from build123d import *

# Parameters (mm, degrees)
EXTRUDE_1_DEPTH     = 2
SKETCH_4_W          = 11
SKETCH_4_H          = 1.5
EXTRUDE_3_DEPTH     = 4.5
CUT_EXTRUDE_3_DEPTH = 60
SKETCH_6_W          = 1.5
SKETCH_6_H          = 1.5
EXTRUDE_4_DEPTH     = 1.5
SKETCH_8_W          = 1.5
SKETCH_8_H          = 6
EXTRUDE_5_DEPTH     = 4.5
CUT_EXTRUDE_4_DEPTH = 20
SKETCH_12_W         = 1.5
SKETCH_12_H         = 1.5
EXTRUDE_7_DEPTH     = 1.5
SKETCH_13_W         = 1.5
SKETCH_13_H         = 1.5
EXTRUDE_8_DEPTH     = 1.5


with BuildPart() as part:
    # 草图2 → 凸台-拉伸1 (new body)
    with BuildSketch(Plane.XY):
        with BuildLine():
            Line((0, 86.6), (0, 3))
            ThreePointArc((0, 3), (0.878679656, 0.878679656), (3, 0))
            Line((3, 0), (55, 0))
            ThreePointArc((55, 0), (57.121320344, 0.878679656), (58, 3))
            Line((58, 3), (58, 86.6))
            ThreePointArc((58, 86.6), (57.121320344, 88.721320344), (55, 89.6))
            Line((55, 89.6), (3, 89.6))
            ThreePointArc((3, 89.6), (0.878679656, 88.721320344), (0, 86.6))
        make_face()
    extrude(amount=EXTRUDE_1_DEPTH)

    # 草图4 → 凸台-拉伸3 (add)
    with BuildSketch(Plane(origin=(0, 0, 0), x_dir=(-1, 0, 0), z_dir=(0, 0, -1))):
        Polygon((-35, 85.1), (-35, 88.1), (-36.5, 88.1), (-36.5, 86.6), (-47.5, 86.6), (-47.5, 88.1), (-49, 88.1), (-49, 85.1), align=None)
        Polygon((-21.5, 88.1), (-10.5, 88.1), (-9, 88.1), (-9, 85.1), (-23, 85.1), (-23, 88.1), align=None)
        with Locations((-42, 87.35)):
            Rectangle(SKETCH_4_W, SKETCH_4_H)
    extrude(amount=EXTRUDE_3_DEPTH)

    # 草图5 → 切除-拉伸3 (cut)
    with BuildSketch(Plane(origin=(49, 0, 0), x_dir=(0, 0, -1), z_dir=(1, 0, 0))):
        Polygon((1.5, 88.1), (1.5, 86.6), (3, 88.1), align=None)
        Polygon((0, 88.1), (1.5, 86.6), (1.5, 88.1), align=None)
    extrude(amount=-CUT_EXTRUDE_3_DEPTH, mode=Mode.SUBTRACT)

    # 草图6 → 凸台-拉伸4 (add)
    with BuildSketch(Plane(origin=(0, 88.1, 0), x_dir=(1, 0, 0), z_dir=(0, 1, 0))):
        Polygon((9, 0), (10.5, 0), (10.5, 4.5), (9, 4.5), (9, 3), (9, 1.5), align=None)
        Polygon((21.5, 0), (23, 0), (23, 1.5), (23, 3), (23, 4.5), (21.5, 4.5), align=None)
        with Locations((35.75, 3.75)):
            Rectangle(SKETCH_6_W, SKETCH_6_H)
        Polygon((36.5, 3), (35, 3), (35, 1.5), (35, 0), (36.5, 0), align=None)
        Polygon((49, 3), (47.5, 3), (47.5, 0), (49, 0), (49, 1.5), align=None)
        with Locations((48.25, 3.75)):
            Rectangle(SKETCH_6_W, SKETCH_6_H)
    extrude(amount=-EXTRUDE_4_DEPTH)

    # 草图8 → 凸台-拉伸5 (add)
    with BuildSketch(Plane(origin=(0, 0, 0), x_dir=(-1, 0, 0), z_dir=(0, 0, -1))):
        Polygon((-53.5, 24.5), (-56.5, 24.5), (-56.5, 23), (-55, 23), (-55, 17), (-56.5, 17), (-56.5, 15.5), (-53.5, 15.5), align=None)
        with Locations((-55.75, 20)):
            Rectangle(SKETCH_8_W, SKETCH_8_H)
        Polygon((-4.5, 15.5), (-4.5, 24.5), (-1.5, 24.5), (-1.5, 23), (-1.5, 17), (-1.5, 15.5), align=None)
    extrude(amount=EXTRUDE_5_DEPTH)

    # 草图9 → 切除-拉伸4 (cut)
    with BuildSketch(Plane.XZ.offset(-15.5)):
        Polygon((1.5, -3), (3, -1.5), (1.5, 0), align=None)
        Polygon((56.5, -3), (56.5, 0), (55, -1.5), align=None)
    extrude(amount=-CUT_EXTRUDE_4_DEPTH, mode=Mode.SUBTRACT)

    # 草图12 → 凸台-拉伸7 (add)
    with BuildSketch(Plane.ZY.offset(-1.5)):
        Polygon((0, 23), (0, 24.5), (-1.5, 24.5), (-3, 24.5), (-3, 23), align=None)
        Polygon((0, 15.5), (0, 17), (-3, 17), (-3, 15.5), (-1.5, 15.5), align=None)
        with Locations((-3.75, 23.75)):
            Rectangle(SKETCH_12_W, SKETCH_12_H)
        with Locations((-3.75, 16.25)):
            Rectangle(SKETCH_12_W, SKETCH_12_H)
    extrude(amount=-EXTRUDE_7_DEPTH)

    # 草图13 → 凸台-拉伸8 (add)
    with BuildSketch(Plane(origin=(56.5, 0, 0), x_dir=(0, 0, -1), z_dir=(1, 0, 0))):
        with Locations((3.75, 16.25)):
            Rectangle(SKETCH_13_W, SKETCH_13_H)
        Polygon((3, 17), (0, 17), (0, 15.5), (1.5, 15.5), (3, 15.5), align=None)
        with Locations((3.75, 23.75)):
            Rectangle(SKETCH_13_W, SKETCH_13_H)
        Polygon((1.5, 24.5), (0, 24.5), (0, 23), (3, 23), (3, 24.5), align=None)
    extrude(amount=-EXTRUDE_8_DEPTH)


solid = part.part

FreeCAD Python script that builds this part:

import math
import FreeCAD as App
import Part
import Sketcher

V = App.Vector
Q = App.Units.Quantity

doc = App.newDocument("Part")
body = doc.addObject("PartDesign::Body", "Body")

# Sketch on XY plane
sketch1 = doc.addObject("Sketcher::SketchObject", "Sketch")
body.addObject(sketch1)
sketch1.AttachmentSupport = (doc.XY_Plane, [""])
sketch1.MapMode = "FlatFace"
sketch1.addGeometry([
    Part.LineSegment(V(0, 86.6, 0), V(0, 3, 0)),  # 0
    Part.ArcOfCircle(Part.Circle(V(3, 3, 0), V(0, 0, 1), 3), math.radians(180), math.radians(270)),  # 1
    Part.LineSegment(V(3, 0, 0), V(55, 0, 0)),  # 2
    Part.ArcOfCircle(Part.Circle(V(55, 3, 0), V(0, 0, 1), 3), math.radians(-90), math.radians(0)),  # 3
    Part.LineSegment(V(58, 3, 0), V(58, 86.6, 0)),  # 4
    Part.ArcOfCircle(Part.Circle(V(55, 86.6, 0), V(0, 0, 1), 3), math.radians(0), math.radians(90)),  # 5
    Part.LineSegment(V(55, 89.6, 0), V(3, 89.6, 0)),  # 6
    Part.ArcOfCircle(Part.Circle(V(3, 86.6, 0), V(0, 0, 1), 3), math.radians(90), math.radians(180)),  # 7
], False)
sketch1.addConstraint([
    Sketcher.Constraint("Tangent", 0, 2, 1, 1),
    Sketcher.Constraint("Tangent", 1, 2, 2, 1),
    Sketcher.Constraint("Tangent", 2, 2, 3, 1),
    Sketcher.Constraint("Tangent", 3, 2, 4, 1),
    Sketcher.Constraint("Tangent", 4, 2, 5, 1),
    Sketcher.Constraint("Tangent", 5, 2, 6, 1),
    Sketcher.Constraint("Tangent", 6, 2, 7, 1),
    Sketcher.Constraint("Tangent", 7, 2, 0, 1),
    Sketcher.Constraint("Vertical", 0),
    Sketcher.Constraint("Horizontal", 2),
    Sketcher.Constraint("Vertical", 4),
    Sketcher.Constraint("Horizontal", 6),
    Sketcher.Constraint("Equal", 1, 3),
    Sketcher.Constraint("Equal", 3, 5),
    Sketcher.Constraint("Equal", 5, 7),
    Sketcher.Constraint("PointOnObject", 0, 2, -2),
    Sketcher.Constraint("PointOnObject", 1, 2, -1),
    Sketcher.Constraint("Radius", 1, Q("3 mm")),
    Sketcher.Constraint("DistanceX", 2, 1, 2, 2, Q("52 mm")),
    Sketcher.Constraint("DistanceY", 0, 2, 0, 1, Q("83.6 mm")),
])
pad1 = doc.addObject("PartDesign::Pad", "Pad")
body.addObject(pad1)
pad1.Profile = sketch1
pad1.Length = 2

# Sketch on XY plane
sketch2 = doc.addObject("Sketcher::SketchObject", "Sketch001")
body.addObject(sketch2)
sketch2.AttachmentSupport = (doc.XY_Plane, [""])
sketch2.MapMode = "FlatFace"
sketch2.addGeometry([
    Part.LineSegment(V(35, 85.1, 0), V(35, 88.1, 0)),  # 0
    Part.LineSegment(V(35, 88.1, 0), V(49, 88.1, 0)),  # 1
    Part.LineSegment(V(49, 88.1, 0), V(49, 85.1, 0)),  # 2
    Part.LineSegment(V(49, 85.1, 0), V(35, 85.1, 0)),  # 3
    Part.LineSegment(V(9, 88.1, 0), V(23, 88.1, 0)),  # 4
    Part.LineSegment(V(23, 88.1, 0), V(23, 85.1, 0)),  # 5
    Part.LineSegment(V(23, 85.1, 0), V(9, 85.1, 0)),  # 6
    Part.LineSegment(V(9, 85.1, 0), V(9, 88.1, 0)),  # 7
], False)
sketch2.addConstraint([
    Sketcher.Constraint("Coincident", 0, 2, 1, 1),
    Sketcher.Constraint("Coincident", 1, 2, 2, 1),
    Sketcher.Constraint("Coincident", 2, 2, 3, 1),
    Sketcher.Constraint("Coincident", 3, 2, 0, 1),
    Sketcher.Constraint("Coincident", 4, 2, 5, 1),
    Sketcher.Constraint("Coincident", 5, 2, 6, 1),
    Sketcher.Constraint("Coincident", 6, 2, 7, 1),
    Sketcher.Constraint("Coincident", 7, 2, 4, 1),
    Sketcher.Constraint("Vertical", 0),
    Sketcher.Constraint("Horizontal", 1),
    Sketcher.Constraint("Vertical", 2),
    Sketcher.Constraint("Horizontal", 3),
    Sketcher.Constraint("Horizontal", 4),
    Sketcher.Constraint("Vertical", 5),
    Sketcher.Constraint("Horizontal", 6),
    Sketcher.Constraint("Vertical", 7),
    Sketcher.Constraint("Horizontal", 1, 2, 4, 2),
    Sketcher.Constraint("Horizontal", 3, 2, 5, 2),
    Sketcher.Constraint("Equal", 3, 4),
    Sketcher.Constraint("DistanceX", 1, 1, 1, 2, Q("14 mm")),
    Sketcher.Constraint("DistanceY", 0, 1, 0, 2, Q("3 mm")),
    Sketcher.Constraint("DistanceX", -1, 1, 0, 2, Q("35 mm")),
    Sketcher.Constraint("DistanceX", -1, 1, 4, 2, Q("23 mm")),
    Sketcher.Constraint("DistanceY", -1, 1, 0, 2, Q("88.1 mm")),
])
pad2 = doc.addObject("PartDesign::Pad", "Pad001")
body.addObject(pad2)
pad2.Profile = sketch2
pad2.Length = 4.5
pad2.Reversed = True

# Sketch on YZ plane
sketch3 = doc.addObject("Sketcher::SketchObject", "Sketch002")
body.addObject(sketch3)
sketch3.AttachmentSupport = (doc.YZ_Plane, [""])
sketch3.MapMode = "FlatFace"
sketch3.AttachmentOffset = App.Placement(V(0, 0, 49), App.Rotation())
sketch3.addGeometry([
    Part.LineSegment(V(86.6, -1.5, 0), V(88.1, -3, 0)),
    Part.LineSegment(V(88.1, -3, 0), V(88.1, 0, 0)),
    Part.LineSegment(V(88.1, 0, 0), V(86.6, -1.5, 0)),
], False)
sketch3.addConstraint([
    Sketcher.Constraint("Coincident", 0, 2, 1, 1),
    Sketcher.Constraint("Coincident", 1, 2, 2, 1),
    Sketcher.Constraint("Coincident", 2, 2, 0, 1),
    Sketcher.Constraint("Vertical", 1),
    Sketcher.Constraint("PointOnObject", 1, 2, -1),
    Sketcher.Constraint("Perpendicular", 0, 2),
    Sketcher.Constraint("Equal", 0, 2),
    Sketcher.Constraint("DistanceY", 1, 1, 1, 2, Q("3 mm")),
    Sketcher.Constraint("DistanceX", -1, 1, 0, 2, Q("88.1 mm")),
])
pocket1 = doc.addObject("PartDesign::Pocket", "Pocket")
body.addObject(pocket1)
pocket1.Profile = sketch3
pocket1.Length = 60

# Sketch on XZ plane
sketch4 = doc.addObject("Sketcher::SketchObject", "Sketch003")
body.addObject(sketch4)
sketch4.AttachmentSupport = (doc.XZ_Plane, [""])
sketch4.MapMode = "FlatFace"
sketch4.AttachmentOffset = App.Placement(V(0, 0, -88.1), App.Rotation())
sketch4.addGeometry([
    Part.LineSegment(V(9, 0, 0), V(10.5, 0, 0)),  # 0
    Part.LineSegment(V(10.5, 0, 0), V(10.5, -4.5, 0)),  # 1
    Part.LineSegment(V(10.5, -4.5, 0), V(9, -4.5, 0)),  # 2
    Part.LineSegment(V(9, -4.5, 0), V(9, 0, 0)),  # 3
    Part.LineSegment(V(21.5, 0, 0), V(23, 0, 0)),  # 4
    Part.LineSegment(V(23, 0, 0), V(23, -4.5, 0)),  # 5
    Part.LineSegment(V(23, -4.5, 0), V(21.5, -4.5, 0)),  # 6
    Part.LineSegment(V(21.5, -4.5, 0), V(21.5, 0, 0)),  # 7
    Part.LineSegment(V(35, -4.5, 0), V(35, 0, 0)),  # 8
    Part.LineSegment(V(35, 0, 0), V(36.5, 0, 0)),  # 9
    Part.LineSegment(V(36.5, 0, 0), V(36.5, -4.5, 0)),  # 10
    Part.LineSegment(V(36.5, -4.5, 0), V(35, -4.5, 0)),  # 11
    Part.LineSegment(V(47.5, 0, 0), V(49, 0, 0)),  # 12
    Part.LineSegment(V(49, 0, 0), V(49, -4.5, 0)),  # 13
    Part.LineSegment(V(49, -4.5, 0), V(47.5, -4.5, 0)),  # 14
    Part.LineSegment(V(47.5, -4.5, 0), V(47.5, 0, 0)),  # 15
], False)
sketch4.addConstraint([
    Sketcher.Constraint("Coincident", 0, 2, 1, 1),
    Sketcher.Constraint("Coincident", 1, 2, 2, 1),
    Sketcher.Constraint("Coincident", 2, 2, 3, 1),
    Sketcher.Constraint("Coincident", 3, 2, 0, 1),
    Sketcher.Constraint("Coincident", 4, 2, 5, 1),
    Sketcher.Constraint("Coincident", 5, 2, 6, 1),
    Sketcher.Constraint("Coincident", 6, 2, 7, 1),
    Sketcher.Constraint("Coincident", 7, 2, 4, 1),
    Sketcher.Constraint("Coincident", 8, 2, 9, 1),
    Sketcher.Constraint("Coincident", 9, 2, 10, 1),
    Sketcher.Constraint("Coincident", 10, 2, 11, 1),
    Sketcher.Constraint("Coincident", 11, 2, 8, 1),
    Sketcher.Constraint("Coincident", 12, 2, 13, 1),
    Sketcher.Constraint("Coincident", 13, 2, 14, 1),
    Sketcher.Constraint("Coincident", 14, 2, 15, 1),
    Sketcher.Constraint("Coincident", 15, 2, 12, 1),
    Sketcher.Constraint("Horizontal", 0),
    Sketcher.Constraint("Vertical", 1),
    Sketcher.Constraint("Horizontal", 2),
    Sketcher.Constraint("Vertical", 3),
    Sketcher.Constraint("Horizontal", 4),
    Sketcher.Constraint("Vertical", 5),
    Sketcher.Constraint("Horizontal", 6),
    Sketcher.Constraint("Vertical", 7),
    Sketcher.Constraint("Vertical", 8),
    Sketcher.Constraint("Horizontal", 9),
    Sketcher.Constraint("Vertical", 10),
    Sketcher.Constraint("Horizontal", 11),
    Sketcher.Constraint("Horizontal", 12),
    Sketcher.Constraint("Vertical", 13),
    Sketcher.Constraint("Horizontal", 14),
    Sketcher.Constraint("Vertical", 15),
    Sketcher.Constraint("PointOnObject", 0, 2, -1),
    Sketcher.Constraint("PointOnObject", 4, 2, -1),
    Sketcher.Constraint("PointOnObject", 8, 2, -1),
    Sketcher.Constraint("PointOnObject", 12, 2, -1),
    Sketcher.Constraint("Horizontal", 2, 2, 5, 2),
    Sketcher.Constraint("Horizontal", 6, 2, 10, 2),
    Sketcher.Constraint("Horizontal", 11, 2, 13, 2),
    Sketcher.Constraint("Equal", 2, 4),
    Sketcher.Constraint("Equal", 6, 9),
    Sketcher.Constraint("Equal", 11, 12),
    Sketcher.Constraint("DistanceX", 0, 1, 0, 2, Q("1.5 mm")),
    Sketcher.Constraint("DistanceY", 1, 2, 1, 1, Q("4.5 mm")),
    Sketcher.Constraint("DistanceX", -1, 1, 2, 2, Q("9 mm")),
    Sketcher.Constraint("DistanceX", -1, 1, 4, 2, Q("23 mm")),
    Sketcher.Constraint("DistanceX", -1, 1, 8, 2, Q("35 mm")),
    Sketcher.Constraint("DistanceX", -1, 1, 12, 2, Q("49 mm")),
])
pad3 = doc.addObject("PartDesign::Pad", "Pad002")
body.addObject(pad3)
pad3.Profile = sketch4
pad3.Length = 1.5

# Sketch on XY plane
sketch5 = doc.addObject("Sketcher::SketchObject", "Sketch004")
body.addObject(sketch5)
sketch5.AttachmentSupport = (doc.XY_Plane, [""])
sketch5.MapMode = "FlatFace"
sketch5.addGeometry([
    Part.LineSegment(V(53.5, 24.5, 0), V(56.5, 24.5, 0)),  # 0
    Part.LineSegment(V(56.5, 24.5, 0), V(56.5, 15.5, 0)),  # 1
    Part.LineSegment(V(56.5, 15.5, 0), V(53.5, 15.5, 0)),  # 2
    Part.LineSegment(V(53.5, 15.5, 0), V(53.5, 24.5, 0)),  # 3
    Part.LineSegment(V(4.5, 24.5, 0), V(4.5, 15.5, 0)),  # 4
    Part.LineSegment(V(4.5, 15.5, 0), V(1.5, 15.5, 0)),  # 5
    Part.LineSegment(V(1.5, 15.5, 0), V(1.5, 24.5, 0)),  # 6
    Part.LineSegment(V(1.5, 24.5, 0), V(4.5, 24.5, 0)),  # 7
], False)
sketch5.addConstraint([
    Sketcher.Constraint("Coincident", 0, 2, 1, 1),
    Sketcher.Constraint("Coincident", 1, 2, 2, 1),
    Sketcher.Constraint("Coincident", 2, 2, 3, 1),
    Sketcher.Constraint("Coincident", 3, 2, 0, 1),
    Sketcher.Constraint("Coincident", 4, 2, 5, 1),
    Sketcher.Constraint("Coincident", 5, 2, 6, 1),
    Sketcher.Constraint("Coincident", 6, 2, 7, 1),
    Sketcher.Constraint("Coincident", 7, 2, 4, 1),
    Sketcher.Constraint("Horizontal", 0),
    Sketcher.Constraint("Vertical", 1),
    Sketcher.Constraint("Horizontal", 2),
    Sketcher.Constraint("Vertical", 3),
    Sketcher.Constraint("Vertical", 4),
    Sketcher.Constraint("Horizontal", 5),
    Sketcher.Constraint("Vertical", 6),
    Sketcher.Constraint("Horizontal", 7),
    Sketcher.Constraint("Horizontal", 2, 2, 4, 2),
    Sketcher.Constraint("Horizontal", 3, 2, 6, 2),
    Sketcher.Constraint("Equal", 2, 5),
    Sketcher.Constraint("DistanceX", 0, 1, 0, 2, Q("3 mm")),
    Sketcher.Constraint("DistanceY", 1, 2, 1, 1, Q("9 mm")),
    Sketcher.Constraint("DistanceX", 4, 2, 2, 2, Q("49 mm")),
    Sketcher.Constraint("DistanceX", -1, 1, 0, 2, Q("56.5 mm")),
    Sketcher.Constraint("DistanceY", -1, 1, 0, 2, Q("24.5 mm")),
])
pad4 = doc.addObject("PartDesign::Pad", "Pad003")
body.addObject(pad4)
pad4.Profile = sketch5
pad4.Length = 4.5
pad4.Reversed = True

# Sketch on XZ plane
sketch6 = doc.addObject("Sketcher::SketchObject", "Sketch005")
body.addObject(sketch6)
sketch6.AttachmentSupport = (doc.XZ_Plane, [""])
sketch6.MapMode = "FlatFace"
sketch6.AttachmentOffset = App.Placement(V(0, 0, -15.5), App.Rotation())
sketch6.addGeometry([
    Part.LineSegment(V(1.5, -3, 0), V(3, -1.5, 0)),  # 0
    Part.LineSegment(V(3, -1.5, 0), V(1.5, 0, 0)),  # 1
    Part.LineSegment(V(1.5, 0, 0), V(1.5, -3, 0)),  # 2
    Part.LineSegment(V(56.5, -3, 0), V(56.5, 0, 0)),  # 3
    Part.LineSegment(V(56.5, 0, 0), V(55, -1.5, 0)),  # 4
    Part.LineSegment(V(55, -1.5, 0), V(56.5, -3, 0)),  # 5
], False)
sketch6.addConstraint([
    Sketcher.Constraint("Coincident", 0, 2, 1, 1),
    Sketcher.Constraint("Coincident", 1, 2, 2, 1),
    Sketcher.Constraint("Coincident", 2, 2, 0, 1),
    Sketcher.Constraint("Coincident", 3, 2, 4, 1),
    Sketcher.Constraint("Coincident", 4, 2, 5, 1),
    Sketcher.Constraint("Coincident", 5, 2, 3, 1),
    Sketcher.Constraint("Vertical", 2),
    Sketcher.Constraint("Vertical", 3),
    Sketcher.Constraint("PointOnObject", 1, 2, -1),
    Sketcher.Constraint("PointOnObject", 3, 2, -1),
    Sketcher.Constraint("Perpendicular", 0, 1),
    Sketcher.Constraint("Perpendicular", 1, 4),
    Sketcher.Constraint("Perpendicular", 4, 5),
    Sketcher.Constraint("Horizontal", 0, 2, 4, 2),
    Sketcher.Constraint("Horizontal", 2, 2, 5, 2),
    Sketcher.Constraint("DistanceY", 2, 2, 2, 1, Q("3 mm")),
    Sketcher.Constraint("DistanceX", -1, 1, 0, 2, Q("3 mm")),
    Sketcher.Constraint("DistanceX", -1, 1, 4, 2, Q("55 mm")),
])
pocket2 = doc.addObject("PartDesign::Pocket", "Pocket001")
body.addObject(pocket2)
pocket2.Profile = sketch6
pocket2.Length = 20

# Sketch on YZ plane
sketch7 = doc.addObject("Sketcher::SketchObject", "Sketch006")
body.addObject(sketch7)
sketch7.AttachmentSupport = (doc.YZ_Plane, [""])
sketch7.MapMode = "FlatFace"
sketch7.AttachmentOffset = App.Placement(V(0, 0, 1.5), App.Rotation())
sketch7.addGeometry([
    Part.LineSegment(V(23, 0, 0), V(24.5, 0, 0)),  # 0
    Part.LineSegment(V(24.5, 0, 0), V(24.5, -4.5, 0)),  # 1
    Part.LineSegment(V(24.5, -4.5, 0), V(23, -4.5, 0)),  # 2
    Part.LineSegment(V(23, -4.5, 0), V(23, 0, 0)),  # 3
    Part.LineSegment(V(15.5, 0, 0), V(17, 0, 0)),  # 4
    Part.LineSegment(V(17, 0, 0), V(17, -4.5, 0)),  # 5
    Part.LineSegment(V(17, -4.5, 0), V(15.5, -4.5, 0)),  # 6
    Part.LineSegment(V(15.5, -4.5, 0), V(15.5, 0, 0)),  # 7
], False)
sketch7.addConstraint([
    Sketcher.Constraint("Coincident", 0, 2, 1, 1),
    Sketcher.Constraint("Coincident", 1, 2, 2, 1),
    Sketcher.Constraint("Coincident", 2, 2, 3, 1),
    Sketcher.Constraint("Coincident", 3, 2, 0, 1),
    Sketcher.Constraint("Coincident", 4, 2, 5, 1),
    Sketcher.Constraint("Coincident", 5, 2, 6, 1),
    Sketcher.Constraint("Coincident", 6, 2, 7, 1),
    Sketcher.Constraint("Coincident", 7, 2, 4, 1),
    Sketcher.Constraint("Horizontal", 0),
    Sketcher.Constraint("Vertical", 1),
    Sketcher.Constraint("Horizontal", 2),
    Sketcher.Constraint("Vertical", 3),
    Sketcher.Constraint("Horizontal", 4),
    Sketcher.Constraint("Vertical", 5),
    Sketcher.Constraint("Horizontal", 6),
    Sketcher.Constraint("Vertical", 7),
    Sketcher.Constraint("PointOnObject", 0, 2, -1),
    Sketcher.Constraint("PointOnObject", 4, 2, -1),
    Sketcher.Constraint("Horizontal", 2, 2, 5, 2),
    Sketcher.Constraint("Equal", 2, 4),
    Sketcher.Constraint("DistanceX", 0, 1, 0, 2, Q("1.5 mm")),
    Sketcher.Constraint("DistanceY", 1, 2, 1, 1, Q("4.5 mm")),
    Sketcher.Constraint("DistanceX", -1, 1, 2, 2, Q("23 mm")),
    Sketcher.Constraint("DistanceX", -1, 1, 4, 2, Q("17 mm")),
])
pad5 = doc.addObject("PartDesign::Pad", "Pad004")
body.addObject(pad5)
pad5.Profile = sketch7
pad5.Length = 1.5

# Sketch on YZ plane
sketch8 = doc.addObject("Sketcher::SketchObject", "Sketch007")
body.addObject(sketch8)
sketch8.AttachmentSupport = (doc.YZ_Plane, [""])
sketch8.MapMode = "FlatFace"
sketch8.AttachmentOffset = App.Placement(V(0, 0, 56.5), App.Rotation())
sketch8.addGeometry([
    Part.LineSegment(V(15.5, -4.5, 0), V(17, -4.5, 0)),  # 0
    Part.LineSegment(V(17, -4.5, 0), V(17, 0, 0)),  # 1
    Part.LineSegment(V(17, 0, 0), V(15.5, 0, 0)),  # 2
    Part.LineSegment(V(15.5, 0, 0), V(15.5, -4.5, 0)),  # 3
    Part.LineSegment(V(23, -4.5, 0), V(24.5, -4.5, 0)),  # 4
    Part.LineSegment(V(24.5, -4.5, 0), V(24.5, 0, 0)),  # 5
    Part.LineSegment(V(24.5, 0, 0), V(23, 0, 0)),  # 6
    Part.LineSegment(V(23, 0, 0), V(23, -4.5, 0)),  # 7
], False)
sketch8.addConstraint([
    Sketcher.Constraint("Coincident", 0, 2, 1, 1),
    Sketcher.Constraint("Coincident", 1, 2, 2, 1),
    Sketcher.Constraint("Coincident", 2, 2, 3, 1),
    Sketcher.Constraint("Coincident", 3, 2, 0, 1),
    Sketcher.Constraint("Coincident", 4, 2, 5, 1),
    Sketcher.Constraint("Coincident", 5, 2, 6, 1),
    Sketcher.Constraint("Coincident", 6, 2, 7, 1),
    Sketcher.Constraint("Coincident", 7, 2, 4, 1),
    Sketcher.Constraint("Horizontal", 0),
    Sketcher.Constraint("Vertical", 1),
    Sketcher.Constraint("Horizontal", 2),
    Sketcher.Constraint("Vertical", 3),
    Sketcher.Constraint("Horizontal", 4),
    Sketcher.Constraint("Vertical", 5),
    Sketcher.Constraint("Horizontal", 6),
    Sketcher.Constraint("Vertical", 7),
    Sketcher.Constraint("PointOnObject", 1, 2, -1),
    Sketcher.Constraint("PointOnObject", 5, 2, -1),
    Sketcher.Constraint("Horizontal", 3, 2, 4, 2),
    Sketcher.Constraint("Equal", 2, 4),
    Sketcher.Constraint("DistanceX", 0, 1, 0, 2, Q("1.5 mm")),
    Sketcher.Constraint("DistanceY", 1, 1, 1, 2, Q("4.5 mm")),
    Sketcher.Constraint("DistanceX", -1, 1, 0, 2, Q("17 mm")),
    Sketcher.Constraint("DistanceX", -1, 1, 6, 2, Q("23 mm")),
])
pad6 = doc.addObject("PartDesign::Pad", "Pad005")
body.addObject(pad6)
pad6.Profile = sketch8
pad6.Length = 1.5
pad6.Reversed = True

doc.recompute()
